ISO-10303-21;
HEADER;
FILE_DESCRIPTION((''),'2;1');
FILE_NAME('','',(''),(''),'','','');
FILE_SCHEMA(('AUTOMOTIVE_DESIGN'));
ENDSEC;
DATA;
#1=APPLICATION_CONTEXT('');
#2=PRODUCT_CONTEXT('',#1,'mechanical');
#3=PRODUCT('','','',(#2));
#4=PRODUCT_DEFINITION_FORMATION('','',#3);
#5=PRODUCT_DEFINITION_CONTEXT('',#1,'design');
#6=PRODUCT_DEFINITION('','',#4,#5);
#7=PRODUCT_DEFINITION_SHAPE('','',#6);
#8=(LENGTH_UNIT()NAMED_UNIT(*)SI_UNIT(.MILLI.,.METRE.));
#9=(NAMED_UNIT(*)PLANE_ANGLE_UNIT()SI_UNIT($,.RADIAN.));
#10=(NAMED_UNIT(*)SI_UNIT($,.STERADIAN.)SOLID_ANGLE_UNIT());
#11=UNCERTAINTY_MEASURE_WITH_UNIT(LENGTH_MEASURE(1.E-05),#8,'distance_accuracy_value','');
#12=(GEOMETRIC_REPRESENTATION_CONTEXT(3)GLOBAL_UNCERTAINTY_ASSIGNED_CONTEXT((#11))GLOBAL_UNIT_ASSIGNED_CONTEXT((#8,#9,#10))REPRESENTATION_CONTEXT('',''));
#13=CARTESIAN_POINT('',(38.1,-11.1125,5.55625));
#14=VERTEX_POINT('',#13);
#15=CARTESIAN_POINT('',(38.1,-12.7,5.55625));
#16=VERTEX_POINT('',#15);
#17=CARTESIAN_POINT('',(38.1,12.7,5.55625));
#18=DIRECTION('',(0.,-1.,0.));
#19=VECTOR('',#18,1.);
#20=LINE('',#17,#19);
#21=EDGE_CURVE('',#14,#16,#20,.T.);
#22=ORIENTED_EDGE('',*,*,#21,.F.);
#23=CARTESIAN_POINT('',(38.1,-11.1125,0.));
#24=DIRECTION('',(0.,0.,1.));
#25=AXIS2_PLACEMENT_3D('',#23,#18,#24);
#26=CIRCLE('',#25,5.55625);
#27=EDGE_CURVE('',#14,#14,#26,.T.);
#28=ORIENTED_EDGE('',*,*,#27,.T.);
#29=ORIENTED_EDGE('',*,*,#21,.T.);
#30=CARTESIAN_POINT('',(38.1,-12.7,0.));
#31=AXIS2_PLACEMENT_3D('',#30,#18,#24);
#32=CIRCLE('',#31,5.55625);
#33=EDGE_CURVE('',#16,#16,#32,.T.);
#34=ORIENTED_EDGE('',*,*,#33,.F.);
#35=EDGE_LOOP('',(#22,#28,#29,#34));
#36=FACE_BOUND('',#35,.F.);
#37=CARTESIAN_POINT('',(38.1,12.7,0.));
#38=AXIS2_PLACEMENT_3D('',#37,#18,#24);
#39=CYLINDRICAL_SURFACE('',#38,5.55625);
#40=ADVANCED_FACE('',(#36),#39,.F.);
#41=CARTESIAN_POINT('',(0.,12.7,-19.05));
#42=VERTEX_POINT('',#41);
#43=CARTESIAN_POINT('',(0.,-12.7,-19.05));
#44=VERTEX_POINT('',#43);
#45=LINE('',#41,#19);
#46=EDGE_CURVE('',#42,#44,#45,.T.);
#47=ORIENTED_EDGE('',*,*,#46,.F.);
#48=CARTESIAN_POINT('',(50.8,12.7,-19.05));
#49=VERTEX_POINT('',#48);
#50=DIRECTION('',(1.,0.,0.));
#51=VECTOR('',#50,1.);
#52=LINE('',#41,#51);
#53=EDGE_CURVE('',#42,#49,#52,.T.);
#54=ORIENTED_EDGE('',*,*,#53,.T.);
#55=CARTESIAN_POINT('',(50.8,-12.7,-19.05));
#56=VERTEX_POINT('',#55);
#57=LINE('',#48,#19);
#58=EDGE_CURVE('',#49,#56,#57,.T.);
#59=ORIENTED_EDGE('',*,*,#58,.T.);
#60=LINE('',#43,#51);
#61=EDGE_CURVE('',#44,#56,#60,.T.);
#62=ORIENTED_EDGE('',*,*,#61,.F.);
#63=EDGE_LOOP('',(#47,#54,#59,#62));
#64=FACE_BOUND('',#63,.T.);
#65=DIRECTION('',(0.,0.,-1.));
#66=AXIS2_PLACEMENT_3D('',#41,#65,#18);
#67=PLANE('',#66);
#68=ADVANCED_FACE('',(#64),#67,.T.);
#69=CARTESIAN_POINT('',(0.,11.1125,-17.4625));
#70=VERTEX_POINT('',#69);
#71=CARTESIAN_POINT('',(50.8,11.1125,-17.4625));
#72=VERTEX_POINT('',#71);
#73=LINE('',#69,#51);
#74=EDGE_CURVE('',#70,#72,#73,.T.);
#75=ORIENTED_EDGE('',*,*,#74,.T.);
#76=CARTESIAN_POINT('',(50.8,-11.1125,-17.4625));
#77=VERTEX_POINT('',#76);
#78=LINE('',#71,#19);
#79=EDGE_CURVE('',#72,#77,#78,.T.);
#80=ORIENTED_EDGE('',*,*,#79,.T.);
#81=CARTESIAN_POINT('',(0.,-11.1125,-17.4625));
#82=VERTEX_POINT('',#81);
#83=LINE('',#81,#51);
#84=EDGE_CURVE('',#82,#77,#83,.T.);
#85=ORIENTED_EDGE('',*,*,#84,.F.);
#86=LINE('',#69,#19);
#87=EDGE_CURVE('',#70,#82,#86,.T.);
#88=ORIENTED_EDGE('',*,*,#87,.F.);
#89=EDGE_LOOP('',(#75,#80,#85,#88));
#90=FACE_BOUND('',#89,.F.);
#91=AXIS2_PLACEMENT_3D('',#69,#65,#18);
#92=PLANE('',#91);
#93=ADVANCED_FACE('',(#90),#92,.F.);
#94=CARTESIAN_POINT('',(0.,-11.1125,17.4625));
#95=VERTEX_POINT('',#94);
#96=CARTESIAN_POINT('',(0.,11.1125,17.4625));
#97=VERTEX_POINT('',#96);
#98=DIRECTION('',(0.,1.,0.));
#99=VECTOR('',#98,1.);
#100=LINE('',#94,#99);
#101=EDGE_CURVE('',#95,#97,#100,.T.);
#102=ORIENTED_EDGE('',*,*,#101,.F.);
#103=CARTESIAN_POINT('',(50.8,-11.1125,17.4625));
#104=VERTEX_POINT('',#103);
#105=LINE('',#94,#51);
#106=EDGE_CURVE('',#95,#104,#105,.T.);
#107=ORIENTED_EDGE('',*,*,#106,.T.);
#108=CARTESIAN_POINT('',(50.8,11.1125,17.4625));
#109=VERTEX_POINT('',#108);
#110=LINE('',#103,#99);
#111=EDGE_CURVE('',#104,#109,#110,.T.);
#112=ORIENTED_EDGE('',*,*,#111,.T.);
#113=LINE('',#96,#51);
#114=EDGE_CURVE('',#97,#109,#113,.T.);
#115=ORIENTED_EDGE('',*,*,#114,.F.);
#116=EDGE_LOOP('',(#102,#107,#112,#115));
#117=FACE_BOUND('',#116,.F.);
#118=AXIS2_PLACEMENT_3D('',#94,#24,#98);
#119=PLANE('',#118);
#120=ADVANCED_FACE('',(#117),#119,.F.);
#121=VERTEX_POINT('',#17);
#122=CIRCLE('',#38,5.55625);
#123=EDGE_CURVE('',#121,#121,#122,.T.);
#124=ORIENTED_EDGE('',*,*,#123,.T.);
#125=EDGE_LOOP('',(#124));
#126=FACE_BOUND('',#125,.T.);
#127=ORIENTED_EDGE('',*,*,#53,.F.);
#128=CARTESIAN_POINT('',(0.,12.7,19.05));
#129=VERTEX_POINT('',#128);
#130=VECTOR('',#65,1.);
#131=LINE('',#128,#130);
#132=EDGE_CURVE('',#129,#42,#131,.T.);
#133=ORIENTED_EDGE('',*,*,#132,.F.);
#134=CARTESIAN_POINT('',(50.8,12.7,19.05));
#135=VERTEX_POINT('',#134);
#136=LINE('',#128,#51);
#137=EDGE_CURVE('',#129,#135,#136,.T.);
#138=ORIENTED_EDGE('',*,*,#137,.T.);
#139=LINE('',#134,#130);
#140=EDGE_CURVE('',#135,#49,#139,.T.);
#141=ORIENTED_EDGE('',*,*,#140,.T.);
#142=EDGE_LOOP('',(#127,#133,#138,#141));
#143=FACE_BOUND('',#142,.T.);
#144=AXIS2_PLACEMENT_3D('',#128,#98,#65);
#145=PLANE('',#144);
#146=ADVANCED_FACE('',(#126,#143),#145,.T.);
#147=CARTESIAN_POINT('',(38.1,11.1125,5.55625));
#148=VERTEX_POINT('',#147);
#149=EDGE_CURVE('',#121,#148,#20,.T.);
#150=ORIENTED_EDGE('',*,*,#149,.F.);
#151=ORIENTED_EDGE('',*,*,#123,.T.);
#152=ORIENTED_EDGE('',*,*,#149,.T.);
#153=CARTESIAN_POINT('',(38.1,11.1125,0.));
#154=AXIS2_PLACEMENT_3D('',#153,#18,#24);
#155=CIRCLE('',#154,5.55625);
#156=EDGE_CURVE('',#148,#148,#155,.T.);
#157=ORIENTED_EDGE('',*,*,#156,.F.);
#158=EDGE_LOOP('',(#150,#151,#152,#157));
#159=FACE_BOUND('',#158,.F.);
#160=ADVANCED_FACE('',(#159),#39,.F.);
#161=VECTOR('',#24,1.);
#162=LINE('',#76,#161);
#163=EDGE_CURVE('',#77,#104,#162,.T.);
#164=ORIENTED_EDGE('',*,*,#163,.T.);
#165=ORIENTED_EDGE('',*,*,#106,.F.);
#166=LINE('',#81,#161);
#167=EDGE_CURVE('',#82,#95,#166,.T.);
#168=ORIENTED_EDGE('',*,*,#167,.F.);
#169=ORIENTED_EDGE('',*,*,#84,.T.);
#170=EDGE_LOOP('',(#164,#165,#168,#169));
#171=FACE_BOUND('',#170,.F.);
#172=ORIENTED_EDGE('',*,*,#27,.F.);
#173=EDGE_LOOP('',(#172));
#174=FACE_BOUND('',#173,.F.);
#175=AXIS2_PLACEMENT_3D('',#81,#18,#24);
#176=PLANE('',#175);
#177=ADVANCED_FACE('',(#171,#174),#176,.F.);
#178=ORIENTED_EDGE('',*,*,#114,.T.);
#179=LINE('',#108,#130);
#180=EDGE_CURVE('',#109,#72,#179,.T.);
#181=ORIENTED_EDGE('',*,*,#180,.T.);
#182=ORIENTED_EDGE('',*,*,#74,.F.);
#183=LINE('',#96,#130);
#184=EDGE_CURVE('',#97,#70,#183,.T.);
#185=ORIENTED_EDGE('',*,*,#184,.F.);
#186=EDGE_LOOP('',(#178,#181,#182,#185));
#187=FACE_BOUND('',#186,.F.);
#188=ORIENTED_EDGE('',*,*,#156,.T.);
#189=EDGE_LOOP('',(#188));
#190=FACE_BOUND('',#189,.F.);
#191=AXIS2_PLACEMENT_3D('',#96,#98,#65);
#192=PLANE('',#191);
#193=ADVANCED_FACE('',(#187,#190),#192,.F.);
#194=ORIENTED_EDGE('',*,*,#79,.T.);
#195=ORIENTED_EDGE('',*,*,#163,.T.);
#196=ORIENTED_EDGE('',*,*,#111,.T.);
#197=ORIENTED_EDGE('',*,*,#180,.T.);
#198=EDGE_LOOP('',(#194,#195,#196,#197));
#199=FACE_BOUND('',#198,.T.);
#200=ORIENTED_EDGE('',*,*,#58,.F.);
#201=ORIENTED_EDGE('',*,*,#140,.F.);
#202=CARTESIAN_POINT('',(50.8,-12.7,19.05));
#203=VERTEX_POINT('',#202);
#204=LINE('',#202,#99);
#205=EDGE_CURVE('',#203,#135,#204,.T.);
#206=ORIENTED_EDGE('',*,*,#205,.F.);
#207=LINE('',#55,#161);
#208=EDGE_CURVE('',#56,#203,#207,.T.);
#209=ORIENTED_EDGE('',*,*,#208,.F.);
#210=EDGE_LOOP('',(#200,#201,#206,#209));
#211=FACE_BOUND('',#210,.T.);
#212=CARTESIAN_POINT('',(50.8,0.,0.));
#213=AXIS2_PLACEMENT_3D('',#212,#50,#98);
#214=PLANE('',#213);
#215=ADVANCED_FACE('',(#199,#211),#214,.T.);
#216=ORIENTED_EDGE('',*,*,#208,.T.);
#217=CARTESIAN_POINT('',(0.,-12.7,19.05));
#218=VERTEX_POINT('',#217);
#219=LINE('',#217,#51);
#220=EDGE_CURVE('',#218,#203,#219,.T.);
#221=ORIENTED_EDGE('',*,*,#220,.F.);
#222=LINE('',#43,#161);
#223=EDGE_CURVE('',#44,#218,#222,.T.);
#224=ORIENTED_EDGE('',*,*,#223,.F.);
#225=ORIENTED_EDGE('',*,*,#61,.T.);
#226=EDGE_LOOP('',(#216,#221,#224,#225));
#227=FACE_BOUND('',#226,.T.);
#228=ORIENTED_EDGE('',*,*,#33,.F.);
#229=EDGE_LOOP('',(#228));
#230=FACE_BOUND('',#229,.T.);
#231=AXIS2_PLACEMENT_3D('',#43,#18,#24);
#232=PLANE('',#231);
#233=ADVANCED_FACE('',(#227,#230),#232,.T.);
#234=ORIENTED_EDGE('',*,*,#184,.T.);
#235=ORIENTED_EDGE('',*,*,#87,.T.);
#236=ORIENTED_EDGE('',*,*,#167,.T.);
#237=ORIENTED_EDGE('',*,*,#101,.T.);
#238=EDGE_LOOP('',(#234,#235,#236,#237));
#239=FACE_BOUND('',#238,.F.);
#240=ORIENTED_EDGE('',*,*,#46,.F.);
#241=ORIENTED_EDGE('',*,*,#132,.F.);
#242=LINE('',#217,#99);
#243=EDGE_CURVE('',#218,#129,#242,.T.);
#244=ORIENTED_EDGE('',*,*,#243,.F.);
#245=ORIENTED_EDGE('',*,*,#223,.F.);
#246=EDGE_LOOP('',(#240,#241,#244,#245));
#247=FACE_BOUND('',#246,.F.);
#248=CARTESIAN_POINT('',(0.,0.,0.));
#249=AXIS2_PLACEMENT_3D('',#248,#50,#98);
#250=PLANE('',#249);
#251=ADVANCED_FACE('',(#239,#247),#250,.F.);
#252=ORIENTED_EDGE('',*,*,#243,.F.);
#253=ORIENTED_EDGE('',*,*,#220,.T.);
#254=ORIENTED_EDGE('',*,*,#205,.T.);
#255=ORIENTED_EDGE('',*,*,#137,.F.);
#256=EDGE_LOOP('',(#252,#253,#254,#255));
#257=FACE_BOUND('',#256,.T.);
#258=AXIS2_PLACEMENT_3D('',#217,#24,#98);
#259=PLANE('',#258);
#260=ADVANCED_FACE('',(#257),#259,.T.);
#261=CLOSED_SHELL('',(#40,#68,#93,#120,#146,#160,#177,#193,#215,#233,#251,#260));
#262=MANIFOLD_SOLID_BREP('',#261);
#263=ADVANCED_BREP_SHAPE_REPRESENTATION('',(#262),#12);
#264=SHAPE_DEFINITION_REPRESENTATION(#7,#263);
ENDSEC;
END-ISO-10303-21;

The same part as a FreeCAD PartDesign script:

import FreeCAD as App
import Part
import Sketcher
from FreeCAD import Vector
Q = App.Units.Quantity

doc = App.newDocument("Part")
body = doc.addObject("PartDesign::Body", "Body")

# Sketch on YZ plane
sketch1 = body.newObject("Sketcher::SketchObject", "Sketch")
sketch1.AttachmentSupport = (doc.getObject("YZ_Plane"), [""])
sketch1.MapMode = "FlatFace"
sketch1.addGeometry(Part.LineSegment(Vector(12.7, 19.05, 0), Vector(-12.7, 19.05, 0)), False)
sketch1.addGeometry(Part.LineSegment(Vector(-12.7, 19.05, 0), Vector(-12.7, -19.05, 0)), False)
sketch1.addGeometry(Part.LineSegment(Vector(-12.7, -19.05, 0), Vector(12.7, -19.05, 0)), False)
sketch1.addGeometry(Part.LineSegment(Vector(12.7, -19.05, 0), Vector(12.7, 19.05, 0)), False)
sketch1.addGeometry(Part.LineSegment(Vector(-11.1125, -17.4625, 0), Vector(-11.1125, 17.4625, 0)), False)
sketch1.addGeometry(Part.LineSegment(Vector(-11.1125, 17.4625, 0), Vector(11.1125, 17.4625, 0)), False)
sketch1.addGeometry(Part.LineSegment(Vector(11.1125, 17.4625, 0), Vector(11.1125, -17.4625, 0)), False)
sketch1.addGeometry(Part.LineSegment(Vector(11.1125, -17.4625, 0), Vector(-11.1125, -17.4625, 0)), False)
sketch1.addConstraint(Sketcher.Constraint("Coincident", 0, 2, 1, 1))
sketch1.addConstraint(Sketcher.Constraint("Coincident", 1, 2, 2, 1))
sketch1.addConstraint(Sketcher.Constraint("Coincident", 2, 2, 3, 1))
sketch1.addConstraint(Sketcher.Constraint("Coincident", 3, 2, 0, 1))
sketch1.addConstraint(Sketcher.Constraint("Coincident", 4, 2, 5, 1))
sketch1.addConstraint(Sketcher.Constraint("Coincident", 5, 2, 6, 1))
sketch1.addConstraint(Sketcher.Constraint("Coincident", 6, 2, 7, 1))
sketch1.addConstraint(Sketcher.Constraint("Coincident", 7, 2, 4, 1))
sketch1.addConstraint(Sketcher.Constraint("Horizontal", 0))
sketch1.addConstraint(Sketcher.Constraint("Vertical", 1))
sketch1.addConstraint(Sketcher.Constraint("Horizontal", 2))
sketch1.addConstraint(Sketcher.Constraint("Vertical", 3))
sketch1.addConstraint(Sketcher.Constraint("Vertical", 4))
sketch1.addConstraint(Sketcher.Constraint("Horizontal", 5))
sketch1.addConstraint(Sketcher.Constraint("Vertical", 6))
sketch1.addConstraint(Sketcher.Constraint("Horizontal", 7))
sketch1.addConstraint(Sketcher.Constraint("Symmetric", 0, 2, 2, 2, -1, 1))
sketch1.addConstraint(Sketcher.Constraint("Symmetric", 4, 2, 6, 2, -1, 1))
sketch1.addConstraint(Sketcher.Constraint("DistanceX", 0, 2, 0, 1, Q("1 in")))
sketch1.addConstraint(Sketcher.Constraint("DistanceY", 1, 2, 1, 1, Q("1.5 in")))
sketch1.addConstraint(Sketcher.Constraint("DistanceX", 0, 2, 4, 2, Q("0.0625 in")))
sketch1.addConstraint(Sketcher.Constraint("DistanceY", 4, 2, 0, 2, Q("0.0625 in")))
pad1 = body.newObject("PartDesign::Pad", "Pad")
pad1.Profile = sketch1
pad1.Length = Q("2 in")

# Sketch on XZ plane
sketch2 = body.newObject("Sketcher::SketchObject", "Sketch001")
sketch2.AttachmentSupport = (doc.getObject("XZ_Plane"), [""])
sketch2.MapMode = "FlatFace"
sketch2.AttachmentOffset = App.Placement(Vector(0, 0, -0.5 * 25.4), App.Rotation())
sketch2.addGeometry(Part.Circle(Vector(38.1, 0, 0), Vector(0, 0, 1), 5.55625), False)
sketch2.addConstraint(Sketcher.Constraint("PointOnObject", 0, 3, -1))
sketch2.addConstraint(Sketcher.Constraint("Diameter", 0, Q("0.4375 in")))
sketch2.addConstraint(Sketcher.Constraint("DistanceX", -1, 1, 0, 3, Q("1.5 in")))
doc.recompute()
hole = body.newObject("PartDesign::Hole", "Hole")
hole.Profile = sketch2
hole.ThreadType = "None"
hole.Diameter = Q("0.4375 in")
hole.DepthType = "ThroughAll"
hole.Reversed = True

doc.recompute()
